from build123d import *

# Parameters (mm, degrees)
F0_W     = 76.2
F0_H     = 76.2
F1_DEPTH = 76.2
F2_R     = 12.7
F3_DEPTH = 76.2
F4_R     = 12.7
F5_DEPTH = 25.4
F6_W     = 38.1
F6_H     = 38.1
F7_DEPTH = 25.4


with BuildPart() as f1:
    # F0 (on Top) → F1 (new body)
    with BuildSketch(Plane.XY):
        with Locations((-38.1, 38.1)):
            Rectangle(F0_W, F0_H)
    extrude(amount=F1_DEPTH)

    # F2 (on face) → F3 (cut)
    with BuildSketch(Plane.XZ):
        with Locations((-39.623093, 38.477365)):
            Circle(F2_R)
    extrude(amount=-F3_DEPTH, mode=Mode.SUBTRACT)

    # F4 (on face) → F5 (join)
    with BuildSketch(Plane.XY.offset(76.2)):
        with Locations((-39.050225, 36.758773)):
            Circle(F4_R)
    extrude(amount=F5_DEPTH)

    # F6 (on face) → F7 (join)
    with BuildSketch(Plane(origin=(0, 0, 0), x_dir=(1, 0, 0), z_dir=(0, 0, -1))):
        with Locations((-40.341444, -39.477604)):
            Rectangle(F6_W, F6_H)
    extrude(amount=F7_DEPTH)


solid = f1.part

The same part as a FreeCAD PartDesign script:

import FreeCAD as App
import Part
import Sketcher
from FreeCAD import Vector
Q = App.Units.Quantity

doc = App.newDocument("Part")
body = doc.addObject("PartDesign::Body", "Body")

sketch1 = doc.addObject("Sketcher::SketchObject", "Sketch")
body.addObject(sketch1)
sketch1.AttachmentSupport = (doc.XY_Plane, [""])
sketch1.MapMode = "FlatFace"
sketch1.addGeometry([
    Part.LineSegment(Vector(-76.2, 76.2, 0), Vector(-76.2, 0, 0)),
    Part.LineSegment(Vector(-76.2, 0, 0), Vector(0, 0, 0)),
    Part.LineSegment(Vector(0, 0, 0), Vector(0, 76.2, 0)),
    Part.LineSegment(Vector(0, 76.2, 0), Vector(-76.2, 76.2, 0)),
], False)
sketch1.addConstraint([
    Sketcher.Constraint("Coincident", 0, 2, 1, 1),
    Sketcher.Constraint("Coincident", 1, 2, 2, 1),
    Sketcher.Constraint("Coincident", 2, 2, 3, 1),
    Sketcher.Constraint("Coincident", 3, 2, 0, 1),
    Sketcher.Constraint("Vertical", 0),
    Sketcher.Constraint("Horizontal", 1),
    Sketcher.Constraint("Vertical", 2),
    Sketcher.Constraint("Horizontal", 3),
    Sketcher.Constraint("Coincident", 1, 2, -1, 1),
    Sketcher.Constraint("Equal", 3, 0),
    Sketcher.Constraint("DistanceX", 1, 1, 1, 2, Q("3 in")),
])
pad1 = doc.addObject("PartDesign::Pad", "Pad")
body.addObject(pad1)
pad1.Profile = sketch1
pad1.Length = Q("3 in")

sketch2 = doc.addObject("Sketcher::SketchObject", "Sketch001")
body.addObject(sketch2)
sketch2.AttachmentSupport = (doc.XZ_Plane, [""])
sketch2.MapMode = "FlatFace"
sketch2.addGeometry(Part.Circle(Vector(-39.623093, 38.477365, 0), Vector(0, 0, 1), 12.7), False)
sketch2.addConstraint([
    Sketcher.Constraint("Diameter", 0, Q("1 in")),
    Sketcher.Constraint("DistanceX", 0, 3, -1, 1, Q("39.623093 mm")),
    Sketcher.Constraint("DistanceY", -1, 1, 0, 3, Q("38.477365 mm")),
])
pocket1 = doc.addObject("PartDesign::Pocket", "Pocket")
body.addObject(pocket1)
pocket1.Profile = sketch2
pocket1.Length = Q("3 in")

sketch3 = doc.addObject("Sketcher::SketchObject", "Sketch002")
body.addObject(sketch3)
sketch3.AttachmentSupport = (doc.XY_Plane, [""])
sketch3.MapMode = "FlatFace"
sketch3.AttachmentOffset = App.Placement(Vector(0, 0, 3 * 25.4), App.Rotation())
sketch3.addGeometry(Part.Circle(Vector(-39.050225, 36.758773, 0), Vector(0, 0, 1), 12.7), False)
sketch3.addConstraint([
    Sketcher.Constraint("Diameter", 0, Q("1 in")),
    Sketcher.Constraint("DistanceX", 0, 3, -1, 1, Q("39.050225 mm")),
    Sketcher.Constraint("DistanceY", -1, 1, 0, 3, Q("36.758773 mm")),
])
pad2 = doc.addObject("PartDesign::Pad", "Pad001")
body.addObject(pad2)
pad2.Profile = sketch3
pad2.Length = Q("1 in")

sketch4 = doc.addObject("Sketcher::SketchObject", "Sketch003")
body.addObject(sketch4)
sketch4.AttachmentSupport = (doc.XY_Plane, [""])
sketch4.MapMode = "FlatFace"
sketch4.addGeometry([
    Part.LineSegment(Vector(-59.391444, 20.427604, 0), Vector(-59.391444, 58.527604, 0)),
    Part.LineSegment(Vector(-59.391444, 58.527604, 0), Vector(-21.291444, 58.527604, 0)),
    Part.LineSegment(Vector(-21.291444, 58.527604, 0), Vector(-21.291444, 20.427604, 0)),
    Part.LineSegment(Vector(-21.291444, 20.427604, 0), Vector(-59.391444, 20.427604, 0)),
], False)
sketch4.addConstraint([
    Sketcher.Constraint("Coincident", 0, 2, 1, 1),
    Sketcher.Constraint("Coincident", 1, 2, 2, 1),
    Sketcher.Constraint("Coincident", 2, 2, 3, 1),
    Sketcher.Constraint("Coincident", 3, 2, 0, 1),
    Sketcher.Constraint("Vertical", 0),
    Sketcher.Constraint("Horizontal", 1),
    Sketcher.Constraint("Vertical", 2),
    Sketcher.Constraint("Horizontal", 3),
    Sketcher.Constraint("Equal", 3, 0),
    Sketcher.Constraint("DistanceX", 1, 1, 1, 2, Q("1.5 in")),
    Sketcher.Constraint("DistanceX", 0, 2, -1, 1, Q("59.391444 mm")),
    Sketcher.Constraint("DistanceY", -1, 1, 0, 2, Q("58.527604 mm")),
])
pad3 = doc.addObject("PartDesign::Pad", "Pad002")
body.addObject(pad3)
pad3.Profile = sketch4
pad3.Length = Q("1 in")
pad3.Reversed = True

doc.recompute()
